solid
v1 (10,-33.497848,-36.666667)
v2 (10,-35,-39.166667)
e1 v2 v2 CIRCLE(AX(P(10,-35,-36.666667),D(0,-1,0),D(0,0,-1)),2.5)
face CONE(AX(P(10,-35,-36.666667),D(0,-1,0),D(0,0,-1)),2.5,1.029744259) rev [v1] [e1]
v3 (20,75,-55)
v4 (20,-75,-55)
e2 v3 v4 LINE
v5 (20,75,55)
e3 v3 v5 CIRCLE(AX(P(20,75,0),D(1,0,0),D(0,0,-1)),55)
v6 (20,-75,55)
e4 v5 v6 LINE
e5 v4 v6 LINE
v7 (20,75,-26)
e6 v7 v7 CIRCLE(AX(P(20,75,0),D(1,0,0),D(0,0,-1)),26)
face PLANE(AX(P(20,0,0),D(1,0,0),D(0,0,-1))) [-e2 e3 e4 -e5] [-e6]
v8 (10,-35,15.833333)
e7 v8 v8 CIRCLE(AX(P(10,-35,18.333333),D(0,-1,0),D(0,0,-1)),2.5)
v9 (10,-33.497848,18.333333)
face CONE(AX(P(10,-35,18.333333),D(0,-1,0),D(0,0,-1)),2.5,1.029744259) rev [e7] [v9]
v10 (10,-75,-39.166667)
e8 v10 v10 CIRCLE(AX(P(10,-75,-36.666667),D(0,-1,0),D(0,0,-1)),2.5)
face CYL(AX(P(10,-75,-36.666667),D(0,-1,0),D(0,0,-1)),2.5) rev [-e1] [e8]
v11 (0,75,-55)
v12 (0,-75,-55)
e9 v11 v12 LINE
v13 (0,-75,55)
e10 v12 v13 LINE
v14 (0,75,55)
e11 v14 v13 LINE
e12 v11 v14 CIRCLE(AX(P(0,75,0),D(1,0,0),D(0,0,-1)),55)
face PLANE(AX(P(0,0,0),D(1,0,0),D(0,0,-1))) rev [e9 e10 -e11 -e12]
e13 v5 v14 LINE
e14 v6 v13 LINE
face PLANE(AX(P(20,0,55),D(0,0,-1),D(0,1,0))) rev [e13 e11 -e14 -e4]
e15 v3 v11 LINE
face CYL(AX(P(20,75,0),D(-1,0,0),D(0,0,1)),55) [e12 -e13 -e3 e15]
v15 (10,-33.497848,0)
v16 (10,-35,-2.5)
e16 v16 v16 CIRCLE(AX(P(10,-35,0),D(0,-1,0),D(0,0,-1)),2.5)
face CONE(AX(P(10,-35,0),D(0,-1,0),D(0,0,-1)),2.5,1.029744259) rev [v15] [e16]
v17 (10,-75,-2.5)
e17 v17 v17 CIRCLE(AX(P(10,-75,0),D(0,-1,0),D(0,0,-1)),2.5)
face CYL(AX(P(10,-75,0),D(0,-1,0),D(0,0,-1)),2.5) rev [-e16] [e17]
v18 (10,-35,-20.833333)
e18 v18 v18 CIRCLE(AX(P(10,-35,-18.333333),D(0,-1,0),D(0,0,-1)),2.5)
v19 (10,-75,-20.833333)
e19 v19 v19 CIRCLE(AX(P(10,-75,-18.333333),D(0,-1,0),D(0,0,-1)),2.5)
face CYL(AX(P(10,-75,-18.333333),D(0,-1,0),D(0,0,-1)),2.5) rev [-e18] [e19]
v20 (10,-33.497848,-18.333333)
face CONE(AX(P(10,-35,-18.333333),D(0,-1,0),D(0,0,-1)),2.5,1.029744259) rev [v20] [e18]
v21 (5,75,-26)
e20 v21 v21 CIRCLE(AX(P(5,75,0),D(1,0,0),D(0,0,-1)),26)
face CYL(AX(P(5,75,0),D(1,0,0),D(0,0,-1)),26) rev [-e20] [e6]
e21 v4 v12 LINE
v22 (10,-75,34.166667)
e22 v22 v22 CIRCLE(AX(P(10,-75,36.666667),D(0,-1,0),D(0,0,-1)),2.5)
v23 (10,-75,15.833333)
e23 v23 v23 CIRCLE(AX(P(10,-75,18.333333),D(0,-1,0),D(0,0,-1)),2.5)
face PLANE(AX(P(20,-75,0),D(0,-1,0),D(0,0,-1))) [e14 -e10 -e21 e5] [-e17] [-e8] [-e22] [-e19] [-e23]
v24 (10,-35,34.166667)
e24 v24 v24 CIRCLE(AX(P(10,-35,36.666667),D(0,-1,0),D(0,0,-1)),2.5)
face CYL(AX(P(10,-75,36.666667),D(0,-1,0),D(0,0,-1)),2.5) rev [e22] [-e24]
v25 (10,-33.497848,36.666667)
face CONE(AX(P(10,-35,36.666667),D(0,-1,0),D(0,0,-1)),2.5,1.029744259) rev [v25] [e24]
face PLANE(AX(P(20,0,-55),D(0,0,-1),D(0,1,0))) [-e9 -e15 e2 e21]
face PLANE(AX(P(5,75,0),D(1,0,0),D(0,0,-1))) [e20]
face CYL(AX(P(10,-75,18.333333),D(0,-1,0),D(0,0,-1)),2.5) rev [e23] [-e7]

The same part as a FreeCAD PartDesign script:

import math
import FreeCAD as App
import Part
import Sketcher

doc = App.newDocument("Part")
body = doc.addObject("PartDesign::Body", "Body")

sketch1 = body.newObject("Sketcher::SketchObject", "Sketch")
sketch1.AttachmentSupport = (doc.getObject("YZ_Plane"), [""])
sketch1.MapMode = "FlatFace"
sketch1.addGeometry(Part.LineSegment(App.Vector(75, 55, 0), App.Vector(-75, 55, 0)), False)
sketch1.addGeometry(Part.LineSegment(App.Vector(-75, 55, 0), App.Vector(-75, -55, 0)), False)
sketch1.addGeometry(Part.LineSegment(App.Vector(-75, -55, 0), App.Vector(75, -55, 0)), False)
sketch1.addGeometry(Part.ArcOfCircle(Part.Circle(App.Vector(75, 0, 0), App.Vector(0, 0, 1), 55), math.radians(-90), math.radians(90)), False)
sketch1.addConstraint(Sketcher.Constraint("Coincident", 0, 2, 1, 1))
sketch1.addConstraint(Sketcher.Constraint("Coincident", 1, 2, 2, 1))
sketch1.addConstraint(Sketcher.Constraint("Tangent", 2, 2, 3, 1))
sketch1.addConstraint(Sketcher.Constraint("Tangent", 3, 2, 0, 1))
sketch1.addConstraint(Sketcher.Constraint("Horizontal", 0))
sketch1.addConstraint(Sketcher.Constraint("Vertical", 1))
sketch1.addConstraint(Sketcher.Constraint("Horizontal", 2))
sketch1.addConstraint(Sketcher.Constraint("Symmetric", 0, 2, 2, 2, -1, 1))
sketch1.addConstraint(Sketcher.Constraint("Radius", 3, 55.0))
sketch1.addConstraint(Sketcher.Constraint("DistanceX", 0, 2, 0, 1, 150.0))
pad1 = body.newObject("PartDesign::Pad", "Pad")
pad1.Profile = sketch1
pad1.Length = 20

sketch2 = body.newObject("Sketcher::SketchObject", "Sketch001")
sketch2.AttachmentSupport = (doc.getObject("YZ_Plane"), [""])
sketch2.MapMode = "FlatFace"
sketch2.AttachmentOffset = App.Placement(App.Vector(0, 0, 20), App.Rotation())
sketch2.addGeometry(Part.Circle(App.Vector(75, 0, 0), App.Vector(0, 0, 1), 26), False)
sketch2.addConstraint(Sketcher.Constraint("PointOnObject", 0, 3, -1))
sketch2.addConstraint(Sketcher.Constraint("Diameter", 0, 52.0))
sketch2.addConstraint(Sketcher.Constraint("DistanceX", -1, 1, 0, 3, 75.0))
pocket1 = body.newObject("PartDesign::Pocket", "Pocket")
pocket1.Profile = sketch2
pocket1.Length = 15

sketch3 = body.newObject("Sketcher::SketchObject", "Sketch002")
sketch3.AttachmentSupport = (doc.getObject("XZ_Plane"), [""])
sketch3.MapMode = "FlatFace"
sketch3.AttachmentOffset = App.Placement(App.Vector(0, 0, 75), App.Rotation())
sketch3.addGeometry(Part.Circle(App.Vector(10, 36.666667, 0), App.Vector(0, 0, 1), 2.5), False)
sketch3.addGeometry(Part.Circle(App.Vector(10, 18.333333, 0), App.Vector(0, 0, 1), 2.5), False)
sketch3.addGeometry(Part.Circle(App.Vector(10, 0, 0), App.Vector(0, 0, 1), 2.5), False)
sketch3.addGeometry(Part.Circle(App.Vector(10, -18.333333, 0), App.Vector(0, 0, 1), 2.5), False)
sketch3.addGeometry(Part.Circle(App.Vector(10, -36.666667, 0), App.Vector(0, 0, 1), 2.5), False)
sketch3.addConstraint(Sketcher.Constraint("Equal", 0, 1))
sketch3.addConstraint(Sketcher.Constraint("Equal", 1, 2))
sketch3.addConstraint(Sketcher.Constraint("Equal", 2, 3))
sketch3.addConstraint(Sketcher.Constraint("Equal", 3, 4))
sketch3.addConstraint(Sketcher.Constraint("Symmetric", 1, 3, 3, 3, -1))
sketch3.addConstraint(Sketcher.Constraint("Symmetric", 0, 3, 4, 3, -1))
sketch3.addConstraint(Sketcher.Constraint("PointOnObject", 2, 3, -1))
sketch3.addConstraint(Sketcher.Constraint("Vertical", 0, 3, 1, 3))
sketch3.addConstraint(Sketcher.Constraint("Vertical", 1, 3, 2, 3))
sketch3.addConstraint(Sketcher.Constraint("Diameter", 0, 5.0))
sketch3.addConstraint(Sketcher.Constraint("DistanceX", -1, 1, 0, 3, 10.0))
sketch3.addConstraint(Sketcher.Constraint("DistanceY", 3, 3, 0, 3, 55.0))
sketch3.addConstraint(Sketcher.Constraint("DistanceY", -1, 1, 0, 3, 36.666667))
doc.recompute()
hole = body.newObject("PartDesign::Hole", "Hole")
hole.Profile = sketch3
hole.ThreadType = "None"
hole.Diameter = 5
hole.DepthType = "Dimension"
hole.Depth = 40
hole.DrillPoint = "Angled"
hole.DrillPointAngle = 118

doc.recompute()
